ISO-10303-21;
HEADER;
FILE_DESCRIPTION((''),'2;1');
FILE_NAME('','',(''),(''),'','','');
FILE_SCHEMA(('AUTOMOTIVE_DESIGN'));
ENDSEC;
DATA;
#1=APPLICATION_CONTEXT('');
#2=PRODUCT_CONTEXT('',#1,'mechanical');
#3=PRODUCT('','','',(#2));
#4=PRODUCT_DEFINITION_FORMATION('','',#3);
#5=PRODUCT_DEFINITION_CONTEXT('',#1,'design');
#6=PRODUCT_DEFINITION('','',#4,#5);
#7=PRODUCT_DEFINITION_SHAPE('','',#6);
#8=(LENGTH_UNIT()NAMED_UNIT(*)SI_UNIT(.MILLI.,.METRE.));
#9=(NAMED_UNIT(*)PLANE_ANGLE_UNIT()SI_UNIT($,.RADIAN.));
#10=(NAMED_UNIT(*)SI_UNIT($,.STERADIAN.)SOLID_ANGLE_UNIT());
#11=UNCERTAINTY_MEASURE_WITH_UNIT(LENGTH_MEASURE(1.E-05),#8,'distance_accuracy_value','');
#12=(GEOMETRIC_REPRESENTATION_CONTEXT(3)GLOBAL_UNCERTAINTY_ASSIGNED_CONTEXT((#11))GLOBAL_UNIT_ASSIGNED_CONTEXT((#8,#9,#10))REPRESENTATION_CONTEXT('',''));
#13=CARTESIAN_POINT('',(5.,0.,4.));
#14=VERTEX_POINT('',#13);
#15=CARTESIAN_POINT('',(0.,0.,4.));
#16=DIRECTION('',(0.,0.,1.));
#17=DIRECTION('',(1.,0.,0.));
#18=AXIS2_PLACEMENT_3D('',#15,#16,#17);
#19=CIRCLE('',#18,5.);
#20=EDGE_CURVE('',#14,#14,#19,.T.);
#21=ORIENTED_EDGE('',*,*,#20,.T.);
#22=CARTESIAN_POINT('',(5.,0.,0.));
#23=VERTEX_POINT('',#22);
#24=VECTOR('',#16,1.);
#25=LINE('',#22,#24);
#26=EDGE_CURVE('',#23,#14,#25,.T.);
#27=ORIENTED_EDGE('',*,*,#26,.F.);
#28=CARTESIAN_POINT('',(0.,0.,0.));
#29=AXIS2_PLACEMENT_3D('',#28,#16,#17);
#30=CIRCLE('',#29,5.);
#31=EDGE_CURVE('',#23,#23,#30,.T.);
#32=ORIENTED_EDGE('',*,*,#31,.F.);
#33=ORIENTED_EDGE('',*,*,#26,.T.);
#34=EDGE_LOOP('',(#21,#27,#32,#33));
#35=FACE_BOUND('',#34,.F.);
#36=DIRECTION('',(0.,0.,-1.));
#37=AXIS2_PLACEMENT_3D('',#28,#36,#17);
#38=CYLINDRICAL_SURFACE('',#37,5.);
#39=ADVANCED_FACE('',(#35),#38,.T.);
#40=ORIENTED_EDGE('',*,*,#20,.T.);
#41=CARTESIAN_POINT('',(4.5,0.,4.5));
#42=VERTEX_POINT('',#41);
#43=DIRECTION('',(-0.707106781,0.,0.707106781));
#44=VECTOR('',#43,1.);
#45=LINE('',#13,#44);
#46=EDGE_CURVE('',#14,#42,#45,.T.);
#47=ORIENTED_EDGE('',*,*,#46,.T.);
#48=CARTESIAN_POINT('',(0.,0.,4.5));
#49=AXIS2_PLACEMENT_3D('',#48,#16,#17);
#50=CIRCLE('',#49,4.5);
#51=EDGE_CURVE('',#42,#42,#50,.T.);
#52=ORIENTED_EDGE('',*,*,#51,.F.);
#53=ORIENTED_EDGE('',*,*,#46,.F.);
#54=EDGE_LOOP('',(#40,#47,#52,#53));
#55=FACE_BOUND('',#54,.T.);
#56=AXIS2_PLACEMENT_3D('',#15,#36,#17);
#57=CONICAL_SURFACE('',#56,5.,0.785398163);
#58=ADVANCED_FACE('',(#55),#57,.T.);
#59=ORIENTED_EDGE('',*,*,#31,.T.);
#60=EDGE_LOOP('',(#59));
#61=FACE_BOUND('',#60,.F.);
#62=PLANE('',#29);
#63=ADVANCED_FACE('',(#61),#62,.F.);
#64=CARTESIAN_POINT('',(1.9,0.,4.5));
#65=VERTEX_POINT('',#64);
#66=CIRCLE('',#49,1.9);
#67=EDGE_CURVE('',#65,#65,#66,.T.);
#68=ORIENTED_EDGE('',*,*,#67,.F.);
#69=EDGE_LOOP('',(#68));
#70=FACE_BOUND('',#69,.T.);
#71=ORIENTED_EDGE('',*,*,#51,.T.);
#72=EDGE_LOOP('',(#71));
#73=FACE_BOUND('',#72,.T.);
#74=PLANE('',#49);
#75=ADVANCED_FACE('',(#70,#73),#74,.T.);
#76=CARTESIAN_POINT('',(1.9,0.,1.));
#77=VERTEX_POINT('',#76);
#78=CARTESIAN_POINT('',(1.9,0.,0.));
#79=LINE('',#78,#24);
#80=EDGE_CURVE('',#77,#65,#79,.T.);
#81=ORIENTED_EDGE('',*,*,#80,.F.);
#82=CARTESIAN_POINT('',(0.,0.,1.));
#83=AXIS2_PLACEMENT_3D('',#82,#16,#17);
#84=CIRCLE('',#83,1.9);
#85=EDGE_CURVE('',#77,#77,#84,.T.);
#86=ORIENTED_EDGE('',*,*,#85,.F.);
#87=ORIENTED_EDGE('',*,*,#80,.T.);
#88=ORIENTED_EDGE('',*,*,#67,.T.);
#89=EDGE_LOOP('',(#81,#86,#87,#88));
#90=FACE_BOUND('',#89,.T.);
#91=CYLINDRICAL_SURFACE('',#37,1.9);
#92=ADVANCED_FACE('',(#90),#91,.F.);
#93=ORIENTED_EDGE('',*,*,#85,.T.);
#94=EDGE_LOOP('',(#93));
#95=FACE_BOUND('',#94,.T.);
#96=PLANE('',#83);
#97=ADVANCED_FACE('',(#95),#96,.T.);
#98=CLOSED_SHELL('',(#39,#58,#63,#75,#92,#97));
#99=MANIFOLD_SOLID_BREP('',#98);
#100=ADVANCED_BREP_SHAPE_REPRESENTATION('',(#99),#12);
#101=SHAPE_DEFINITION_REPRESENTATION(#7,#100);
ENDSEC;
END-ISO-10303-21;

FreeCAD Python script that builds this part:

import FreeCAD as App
import Part
import Sketcher

V = App.Vector
Q = App.Units.Quantity


def edges_at(feature, points):
    """Names of the edges that pass closest to the given points."""
    edges = feature.Shape.Edges
    near = lambda p: min(range(len(edges)), key=lambda i: edges[i].distToShape(Part.Vertex(*p))[0])
    return sorted({f"Edge{near(p) + 1}" for p in points})

doc = App.newDocument("Part")
body = doc.addObject("PartDesign::Body", "Body")

sketch1 = doc.addObject("Sketcher::SketchObject", "Sketch")
body.addObject(sketch1)
sketch1.AttachmentSupport = (doc.XY_Plane, [""])
sketch1.MapMode = "FlatFace"
sketch1.addGeometry(Part.Circle(V(0, 0, 0), V(0, 0, 1), 5), False)
sketch1.addGeometry(Part.Circle(V(0, 0, 0), V(0, 0, 1), 1.9), False)
sketch1.addConstraint(Sketcher.Constraint("Coincident", 0, 3, -1, 1))
sketch1.addConstraint(Sketcher.Constraint("Coincident", 1, 3, -1, 1))
sketch1.addConstraint(Sketcher.Constraint("Diameter", 0, Q("10 mm")))
sketch1.addConstraint(Sketcher.Constraint("Diameter", 1, Q("3.8 mm")))
pad1 = doc.addObject("PartDesign::Pad", "Pad")
body.addObject(pad1)
pad1.Profile = sketch1
pad1.Length = 4.5

sketch2 = doc.addObject("Sketcher::SketchObject", "Sketch001")
body.addObject(sketch2)
sketch2.AttachmentSupport = (doc.XY_Plane, [""])
sketch2.MapMode = "FlatFace"
sketch2.addGeometry(Part.Circle(V(0, 0, 0), V(0, 0, 1), 1.9), False)
sketch2.addConstraint(Sketcher.Constraint("Coincident", 0, 3, -1, 1))
sketch2.addConstraint(Sketcher.Constraint("Diameter", 0, Q("3.8 mm")))
pad2 = doc.addObject("PartDesign::Pad", "Pad001")
body.addObject(pad2)
pad2.Profile = sketch2
pad2.Length = 1
doc.recompute()

chamfer = doc.addObject("PartDesign::Chamfer", "Chamfer")
body.addObject(chamfer)
chamfer.Base = (pad2, edges_at(pad2, [(-5, 0, 4.5)]))
chamfer.Size = 0.5

doc.recompute()
